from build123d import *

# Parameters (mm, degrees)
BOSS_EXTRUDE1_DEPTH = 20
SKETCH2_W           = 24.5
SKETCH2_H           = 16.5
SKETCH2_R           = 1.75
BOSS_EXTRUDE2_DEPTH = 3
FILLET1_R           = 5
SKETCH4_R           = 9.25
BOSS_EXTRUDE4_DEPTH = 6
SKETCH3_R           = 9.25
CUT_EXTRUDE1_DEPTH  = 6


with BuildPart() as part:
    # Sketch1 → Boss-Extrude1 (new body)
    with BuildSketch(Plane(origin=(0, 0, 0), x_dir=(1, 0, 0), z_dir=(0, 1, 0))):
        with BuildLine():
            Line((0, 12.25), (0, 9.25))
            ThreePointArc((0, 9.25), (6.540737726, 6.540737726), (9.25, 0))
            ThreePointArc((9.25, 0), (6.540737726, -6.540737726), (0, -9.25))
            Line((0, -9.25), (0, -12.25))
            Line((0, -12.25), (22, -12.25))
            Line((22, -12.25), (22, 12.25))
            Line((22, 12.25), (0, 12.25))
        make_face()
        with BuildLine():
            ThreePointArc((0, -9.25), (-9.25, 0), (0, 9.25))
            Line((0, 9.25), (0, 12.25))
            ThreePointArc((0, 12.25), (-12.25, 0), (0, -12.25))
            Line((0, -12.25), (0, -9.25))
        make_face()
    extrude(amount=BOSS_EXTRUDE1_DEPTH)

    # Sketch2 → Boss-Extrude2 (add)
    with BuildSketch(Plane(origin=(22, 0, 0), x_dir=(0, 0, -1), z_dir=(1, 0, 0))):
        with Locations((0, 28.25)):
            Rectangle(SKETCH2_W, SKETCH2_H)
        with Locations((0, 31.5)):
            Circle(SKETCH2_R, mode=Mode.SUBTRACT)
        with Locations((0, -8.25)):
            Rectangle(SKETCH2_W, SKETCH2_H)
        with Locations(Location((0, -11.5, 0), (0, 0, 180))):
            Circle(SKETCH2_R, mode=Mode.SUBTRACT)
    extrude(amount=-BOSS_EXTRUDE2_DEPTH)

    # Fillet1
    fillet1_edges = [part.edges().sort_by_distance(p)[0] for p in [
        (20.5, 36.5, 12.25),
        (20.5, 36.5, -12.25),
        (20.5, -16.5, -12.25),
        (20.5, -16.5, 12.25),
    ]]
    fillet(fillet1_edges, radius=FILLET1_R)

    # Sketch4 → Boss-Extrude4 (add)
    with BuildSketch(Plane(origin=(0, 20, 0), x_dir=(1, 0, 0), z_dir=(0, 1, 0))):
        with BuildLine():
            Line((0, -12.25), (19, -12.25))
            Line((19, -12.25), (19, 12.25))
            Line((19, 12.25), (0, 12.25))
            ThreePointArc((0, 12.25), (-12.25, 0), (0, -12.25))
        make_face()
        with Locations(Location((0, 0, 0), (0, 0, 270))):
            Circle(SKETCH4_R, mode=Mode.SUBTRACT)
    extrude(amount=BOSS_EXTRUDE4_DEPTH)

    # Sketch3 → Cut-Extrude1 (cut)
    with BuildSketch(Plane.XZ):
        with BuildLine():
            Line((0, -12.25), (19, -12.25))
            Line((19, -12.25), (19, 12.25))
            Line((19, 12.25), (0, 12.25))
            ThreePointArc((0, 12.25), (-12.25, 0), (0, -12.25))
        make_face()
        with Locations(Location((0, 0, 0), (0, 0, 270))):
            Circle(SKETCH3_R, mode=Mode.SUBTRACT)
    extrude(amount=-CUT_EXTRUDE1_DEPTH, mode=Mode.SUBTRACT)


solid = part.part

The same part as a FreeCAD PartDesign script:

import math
import FreeCAD as App
import Part
import Sketcher


def edges_at(feature, points):
    """Names of the edges that pass closest to the given points."""
    edges = feature.Shape.Edges
    near = lambda p: min(range(len(edges)), key=lambda i: edges[i].distToShape(Part.Vertex(*p))[0])
    return sorted({f"Edge{near(p) + 1}" for p in points})


def add_polygon(sketch, points):
    """Adds a closed chain of lines whose ends are joined by coincident constraints."""
    first, n = sketch.GeometryCount, len(points)
    for a, b in zip(points, points[1:] + points[:1]):
        sketch.addGeometry(Part.LineSegment(App.Vector(*a, 0), App.Vector(*b, 0)), False)
    for i in range(n):
        sketch.addConstraint(Sketcher.Constraint("Coincident", first + i, 2, first + (i + 1) % n, 1))

doc = App.newDocument("Part")
body = doc.addObject("PartDesign::Body", "Body")

# Sketch on XZ plane
sketch1 = doc.addObject("Sketcher::SketchObject", "Sketch")
body.addObject(sketch1)
sketch1.AttachmentSupport = (doc.XZ_Plane, [""])
sketch1.MapMode = "FlatFace"
sketch1.addGeometry(Part.LineSegment(App.Vector(0, 12, 0), App.Vector(22, 12, 0)), False)
sketch1.addGeometry(Part.LineSegment(App.Vector(22, 12, 0), App.Vector(22, -12, 0)), False)
sketch1.addGeometry(Part.LineSegment(App.Vector(22, -12, 0), App.Vector(0, -12, 0)), False)
sketch1.addGeometry(Part.ArcOfCircle(Part.Circle(App.Vector(0, 0, 0), App.Vector(0, 0, 1), 12), math.radians(90), math.radians(270)), False)
sketch1.addGeometry(Part.ArcOfCircle(Part.Circle(App.Vector(0, 0, 0), App.Vector(0, 0, 1), 9), math.radians(-90), math.radians(0)), False)
sketch1.addGeometry(Part.ArcOfCircle(Part.Circle(App.Vector(0, 0, 0), App.Vector(0, 0, 1), 9), math.radians(0), math.radians(90)), False)
sketch1.addGeometry(Part.ArcOfCircle(Part.Circle(App.Vector(0, 0, 0), App.Vector(0, 0, 1), 9), math.radians(90), math.radians(270)), False)
sketch1.addConstraint(Sketcher.Constraint("Coincident", 0, 2, 1, 1))
sketch1.addConstraint(Sketcher.Constraint("Coincident", 1, 2, 2, 1))
sketch1.addConstraint(Sketcher.Constraint("Tangent", 2, 2, 3, 2))
sketch1.addConstraint(Sketcher.Constraint("Tangent", 3, 1, 0, 1))
sketch1.addConstraint(Sketcher.Constraint("Tangent", 4, 2, 5, 1))
sketch1.addConstraint(Sketcher.Constraint("Tangent", 5, 2, 6, 1))
sketch1.addConstraint(Sketcher.Constraint("Tangent", 6, 2, 4, 1))
sketch1.addConstraint(Sketcher.Constraint("Horizontal", 0))
sketch1.addConstraint(Sketcher.Constraint("Vertical", 1))
sketch1.addConstraint(Sketcher.Constraint("Horizontal", 2))
sketch1.addConstraint(Sketcher.Constraint("Coincident", 3, 3, -1, 1))
sketch1.addConstraint(Sketcher.Constraint("Coincident", 4, 3, -1, 1))
sketch1.addConstraint(Sketcher.Constraint("PointOnObject", 4, 2, -1))
sketch1.addConstraint(Sketcher.Constraint("PointOnObject", 5, 2, -2))
sketch1.addConstraint(Sketcher.Constraint("PointOnObject", 6, 2, -2))
sketch1.addConstraint(Sketcher.Constraint("DistanceX", 0, 1, 0, 2, 22.0))
sketch1.addConstraint(Sketcher.Constraint("Radius", 3, 12.25))
sketch1.addConstraint(Sketcher.Constraint("Radius", 4, 9.25))
pad1 = doc.addObject("PartDesign::Pad", "Pad")
body.addObject(pad1)
pad1.Profile = sketch1
pad1.Length = 20
pad1.Reversed = True

# Sketch on YZ plane
sketch2 = doc.addObject("Sketcher::SketchObject", "Sketch001")
body.addObject(sketch2)
sketch2.AttachmentSupport = (doc.YZ_Plane, [""])
sketch2.MapMode = "FlatFace"
sketch2.AttachmentOffset = App.Placement(App.Vector(0, 0, 22), App.Rotation())
add_polygon(sketch2, [(36.5, 12.2), (20, 12.2), (20, -12.2), (36.5, -12.2)])  # lines 0-3
sketch2.addGeometry(Part.Circle(App.Vector(31.5, 0, 0), App.Vector(0, 0, 1), 1.8), False)  # 4
add_polygon(sketch2, [(0, 12.2), (-16.5, 12.2), (-16.5, -12.2), (0, -12.2)])  # lines 5-8
sketch2.addGeometry(Part.Circle(App.Vector(-11.5, 0, 0), App.Vector(0, 0, 1), 1.8), False)  # 9
sketch2.addConstraint(Sketcher.Constraint("Horizontal", 0))
sketch2.addConstraint(Sketcher.Constraint("Vertical", 1))
sketch2.addConstraint(Sketcher.Constraint("Horizontal", 2))
sketch2.addConstraint(Sketcher.Constraint("Vertical", 3))
sketch2.addConstraint(Sketcher.Constraint("Horizontal", 5))
sketch2.addConstraint(Sketcher.Constraint("Vertical", 6))
sketch2.addConstraint(Sketcher.Constraint("Horizontal", 7))
sketch2.addConstraint(Sketcher.Constraint("Vertical", 8))
sketch2.addConstraint(Sketcher.Constraint("Equal", 4, 9))
sketch2.addConstraint(Sketcher.Constraint("Symmetric", 7, 2, 8, 2, -1, 1))
sketch2.addConstraint(Sketcher.Constraint("PointOnObject", 4, 3, -1))
sketch2.addConstraint(Sketcher.Constraint("PointOnObject", 9, 3, -1))
sketch2.addConstraint(Sketcher.Constraint("Horizontal", 3, 2, 5, 2))
sketch2.addConstraint(Sketcher.Constraint("Horizontal", 2, 2, 6, 2))
sketch2.addConstraint(Sketcher.Constraint("Equal", 2, 5))
sketch2.addConstraint(Sketcher.Constraint("Diameter", 4, 3.5))
sketch2.addConstraint(Sketcher.Constraint("DistanceX", 0, 2, 0, 1, 16.5))
sketch2.addConstraint(Sketcher.Constraint("DistanceY", 1, 2, 1, 1, 24.5))
sketch2.addConstraint(Sketcher.Constraint("DistanceX", -1, 1, 0, 2, 20.0))
sketch2.addConstraint(Sketcher.Constraint("DistanceX", 9, 3, 4, 3, 43.0))
sketch2.addConstraint(Sketcher.Constraint("DistanceX", 4, 3, 2, 2, 5.0))
pad2 = doc.addObject("PartDesign::Pad", "Pad001")
body.addObject(pad2)
pad2.Profile = sketch2
pad2.Length = 3
pad2.Reversed = True
doc.recompute()

fillet = doc.addObject("PartDesign::Fillet", "Fillet")
body.addObject(fillet)
fillet.Base = (pad2, edges_at(pad2, [
    (20.5, 36.5, 12.25),
    (20.5, 36.5, -12.25),
    (20.5, -16.5, -12.25),
    (20.5, -16.5, 12.25),
]))
fillet.Radius = 5

# Sketch on XZ plane
sketch3 = doc.addObject("Sketcher::SketchObject", "Sketch002")
body.addObject(sketch3)
sketch3.AttachmentSupport = (doc.XZ_Plane, [""])
sketch3.MapMode = "FlatFace"
sketch3.AttachmentOffset = App.Placement(App.Vector(0, 0, -20), App.Rotation())
sketch3.addGeometry(Part.LineSegment(App.Vector(0, 12, 0), App.Vector(19, 12, 0)), False)
sketch3.addGeometry(Part.LineSegment(App.Vector(19, 12, 0), App.Vector(19, -12, 0)), False)
sketch3.addGeometry(Part.LineSegment(App.Vector(19, -12, 0), App.Vector(0, -12, 0)), False)
sketch3.addGeometry(Part.ArcOfCircle(Part.Circle(App.Vector(0, 0, 0), App.Vector(0, 0, 1), 12), math.radians(90), math.radians(270)), False)
sketch3.addGeometry(Part.Circle(App.Vector(0, 0, 0), App.Vector(0, 0, 1), 9), False)
sketch3.addConstraint(Sketcher.Constraint("Coincident", 0, 2, 1, 1))
sketch3.addConstraint(Sketcher.Constraint("Coincident", 1, 2, 2, 1))
sketch3.addConstraint(Sketcher.Constraint("Tangent", 2, 2, 3, 2))
sketch3.addConstraint(Sketcher.Constraint("Tangent", 3, 1, 0, 1))
sketch3.addConstraint(Sketcher.Constraint("Horizontal", 0))
sketch3.addConstraint(Sketcher.Constraint("Vertical", 1))
sketch3.addConstraint(Sketcher.Constraint("Horizontal", 2))
sketch3.addConstraint(Sketcher.Constraint("Coincident", 3, 3, -1, 1))
sketch3.addConstraint(Sketcher.Constraint("Coincident", 4, 3, -1, 1))
sketch3.addConstraint(Sketcher.Constraint("Diameter", 4, 18.5))
sketch3.addConstraint(Sketcher.Constraint("DistanceX", 0, 1, 0, 2, 19.0))
sketch3.addConstraint(Sketcher.Constraint("Radius", 3, 12.25))
pad3 = doc.addObject("PartDesign::Pad", "Pad002")
body.addObject(pad3)
pad3.Profile = sketch3
pad3.Length = 6
pad3.Reversed = True

# Sketch on XZ plane
sketch4 = doc.addObject("Sketcher::SketchObject", "Sketch003")
body.addObject(sketch4)
sketch4.AttachmentSupport = (doc.XZ_Plane, [""])
sketch4.MapMode = "FlatFace"
sketch4.addGeometry(Part.LineSegment(App.Vector(0, -12, 0), App.Vector(19, -12, 0)), False)
sketch4.addGeometry(Part.LineSegment(App.Vector(19, -12, 0), App.Vector(19, 12, 0)), False)
sketch4.addGeometry(Part.LineSegment(App.Vector(19, 12, 0), App.Vector(0, 12, 0)), False)
sketch4.addGeometry(Part.ArcOfCircle(Part.Circle(App.Vector(0, 0, 0), App.Vector(0, 0, 1), 12), math.radians(90), math.radians(270)), False)
sketch4.addGeometry(Part.Circle(App.Vector(0, 0, 0), App.Vector(0, 0, 1), 9), False)
sketch4.addConstraint(Sketcher.Constraint("Coincident", 0, 2, 1, 1))
sketch4.addConstraint(Sketcher.Constraint("Coincident", 1, 2, 2, 1))
sketch4.addConstraint(Sketcher.Constraint("Tangent", 2, 2, 3, 1))
sketch4.addConstraint(Sketcher.Constraint("Tangent", 3, 2, 0, 1))
sketch4.addConstraint(Sketcher.Constraint("Horizontal", 0))
sketch4.addConstraint(Sketcher.Constraint("Vertical", 1))
sketch4.addConstraint(Sketcher.Constraint("Horizontal", 2))
sketch4.addConstraint(Sketcher.Constraint("Coincident", 3, 3, -1, 1))
sketch4.addConstraint(Sketcher.Constraint("Coincident", 4, 3, -1, 1))
sketch4.addConstraint(Sketcher.Constraint("Diameter", 4, 18.5))
sketch4.addConstraint(Sketcher.Constraint("DistanceX", 0, 1, 0, 2, 19.0))
sketch4.addConstraint(Sketcher.Constraint("Radius", 3, 12.25))
pocket1 = doc.addObject("PartDesign::Pocket", "Pocket")
body.addObject(pocket1)
pocket1.Profile = sketch4
pocket1.Length = 6

doc.recompute()
